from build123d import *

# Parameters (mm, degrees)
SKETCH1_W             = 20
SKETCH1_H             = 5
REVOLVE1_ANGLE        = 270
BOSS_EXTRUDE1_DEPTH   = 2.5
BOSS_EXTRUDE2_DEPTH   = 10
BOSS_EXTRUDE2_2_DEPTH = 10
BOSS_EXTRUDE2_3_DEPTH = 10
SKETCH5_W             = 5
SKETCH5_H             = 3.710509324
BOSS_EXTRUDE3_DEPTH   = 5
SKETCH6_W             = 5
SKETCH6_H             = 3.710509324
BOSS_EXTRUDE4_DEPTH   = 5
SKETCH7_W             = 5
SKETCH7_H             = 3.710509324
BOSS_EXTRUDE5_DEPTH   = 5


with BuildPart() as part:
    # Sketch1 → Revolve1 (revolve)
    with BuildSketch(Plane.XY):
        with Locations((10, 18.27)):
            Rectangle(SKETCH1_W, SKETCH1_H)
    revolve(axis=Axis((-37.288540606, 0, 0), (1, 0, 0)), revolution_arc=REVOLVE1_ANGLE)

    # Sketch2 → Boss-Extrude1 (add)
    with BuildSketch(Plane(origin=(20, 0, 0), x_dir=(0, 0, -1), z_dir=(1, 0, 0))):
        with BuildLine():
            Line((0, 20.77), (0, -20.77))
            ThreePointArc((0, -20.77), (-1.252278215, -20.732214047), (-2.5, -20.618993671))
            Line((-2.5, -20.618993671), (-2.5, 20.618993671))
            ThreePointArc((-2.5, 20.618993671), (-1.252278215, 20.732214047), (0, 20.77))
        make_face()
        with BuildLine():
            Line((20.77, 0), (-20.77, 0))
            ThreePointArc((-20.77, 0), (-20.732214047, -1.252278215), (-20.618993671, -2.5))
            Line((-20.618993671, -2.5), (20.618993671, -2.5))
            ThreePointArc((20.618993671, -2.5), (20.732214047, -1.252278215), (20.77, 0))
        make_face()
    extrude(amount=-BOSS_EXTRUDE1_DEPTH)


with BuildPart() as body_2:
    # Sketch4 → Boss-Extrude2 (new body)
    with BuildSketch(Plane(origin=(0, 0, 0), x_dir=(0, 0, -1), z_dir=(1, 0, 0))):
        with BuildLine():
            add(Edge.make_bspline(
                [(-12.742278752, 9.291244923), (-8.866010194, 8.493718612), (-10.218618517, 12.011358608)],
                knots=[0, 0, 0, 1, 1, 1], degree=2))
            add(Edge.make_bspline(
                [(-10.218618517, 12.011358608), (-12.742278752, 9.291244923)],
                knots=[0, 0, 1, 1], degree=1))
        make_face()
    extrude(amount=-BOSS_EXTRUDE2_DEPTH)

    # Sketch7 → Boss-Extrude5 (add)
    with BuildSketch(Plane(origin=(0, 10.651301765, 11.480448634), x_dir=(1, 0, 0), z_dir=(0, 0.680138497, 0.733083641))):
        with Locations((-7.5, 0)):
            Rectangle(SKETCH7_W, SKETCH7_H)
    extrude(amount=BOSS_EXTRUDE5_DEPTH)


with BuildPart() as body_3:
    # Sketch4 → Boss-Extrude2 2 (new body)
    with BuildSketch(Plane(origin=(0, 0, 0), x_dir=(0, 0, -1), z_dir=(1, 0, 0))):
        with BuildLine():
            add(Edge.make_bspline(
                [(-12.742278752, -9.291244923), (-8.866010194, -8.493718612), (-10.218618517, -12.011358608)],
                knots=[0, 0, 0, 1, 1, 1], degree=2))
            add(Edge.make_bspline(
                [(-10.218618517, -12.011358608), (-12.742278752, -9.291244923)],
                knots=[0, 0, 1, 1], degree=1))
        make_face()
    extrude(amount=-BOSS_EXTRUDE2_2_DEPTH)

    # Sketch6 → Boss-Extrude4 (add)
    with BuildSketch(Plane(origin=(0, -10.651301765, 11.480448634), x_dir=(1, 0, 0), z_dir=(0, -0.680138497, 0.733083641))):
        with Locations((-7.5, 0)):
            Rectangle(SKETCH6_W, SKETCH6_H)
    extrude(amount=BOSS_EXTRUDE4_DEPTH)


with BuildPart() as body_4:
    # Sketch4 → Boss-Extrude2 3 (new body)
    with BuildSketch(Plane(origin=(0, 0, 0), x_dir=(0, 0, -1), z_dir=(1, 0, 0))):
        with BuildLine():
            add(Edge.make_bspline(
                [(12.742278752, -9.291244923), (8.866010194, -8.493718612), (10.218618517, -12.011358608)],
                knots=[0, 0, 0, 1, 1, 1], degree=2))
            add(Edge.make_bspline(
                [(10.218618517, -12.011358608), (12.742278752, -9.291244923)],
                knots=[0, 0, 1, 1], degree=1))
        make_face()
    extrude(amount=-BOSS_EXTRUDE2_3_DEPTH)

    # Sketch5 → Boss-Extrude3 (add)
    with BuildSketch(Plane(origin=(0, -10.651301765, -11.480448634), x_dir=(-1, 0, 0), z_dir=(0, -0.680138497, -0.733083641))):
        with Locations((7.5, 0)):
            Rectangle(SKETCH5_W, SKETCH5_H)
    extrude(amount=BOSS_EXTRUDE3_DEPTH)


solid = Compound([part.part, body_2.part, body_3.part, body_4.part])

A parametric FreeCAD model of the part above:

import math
import FreeCAD as App
import Part
import Sketcher


def add_polygon(sketch, points):
    """Adds a closed chain of lines whose ends are joined by coincident constraints."""
    first, n = sketch.GeometryCount, len(points)
    for a, b in zip(points, points[1:] + points[:1]):
        sketch.addGeometry(Part.LineSegment(App.Vector(*a, 0), App.Vector(*b, 0)), False)
    for i in range(n):
        sketch.addConstraint(Sketcher.Constraint("Coincident", first + i, 2, first + (i + 1) % n, 1))

doc = App.newDocument("Part")
body = doc.addObject("PartDesign::Body", "Body")

sketch1 = body.newObject("Sketcher::SketchObject", "Sketch")
sketch1.AttachmentSupport = (doc.getObject("XY_Plane"), [""])
sketch1.MapMode = "FlatFace"
add_polygon(sketch1, [(0, 20.77), (0, 15.77), (20, 15.77), (20, 20.77)])
sketch1.addConstraint([
    Sketcher.Constraint("Vertical", 0),
    Sketcher.Constraint("Horizontal", 1),
    Sketcher.Constraint("Vertical", 2),
    Sketcher.Constraint("Horizontal", 3),
    Sketcher.Constraint("PointOnObject", 0, 2, -2),
    Sketcher.Constraint("DistanceX", 1, 1, 1, 2, 20.0),
    Sketcher.Constraint("DistanceY", 0, 2, 0, 1, 5.0),
    Sketcher.Constraint("DistanceY", -1, 1, 0, 2, 15.77),
])
revolution = body.newObject("PartDesign::Revolution", "Revolution")
revolution.Profile = sketch1
revolution.ReferenceAxis = (sketch1, ["H_Axis"])
revolution.Angle = 270

sketch2 = body.newObject("Sketcher::SketchObject", "Sketch001")
sketch2.AttachmentSupport = (doc.getObject("YZ_Plane"), [""])
sketch2.MapMode = "FlatFace"
sketch2.AttachmentOffset = App.Placement(App.Vector(0, 0, 20), App.Rotation())
sketch2.addGeometry([
    Part.ArcOfCircle(Part.Circle(App.Vector(0, 0, 0), App.Vector(0, 0, 1), 20.77), math.radians(0), math.radians(6.913221)),
    Part.LineSegment(App.Vector(20.618994, 2.5, 0), App.Vector(0, 2.5, 0)),
    Part.LineSegment(App.Vector(0, 2.5, 0), App.Vector(0, 20.77, 0)),
    Part.ArcOfCircle(Part.Circle(App.Vector(0, 0, 0), App.Vector(0, 0, 1), 20.77), math.radians(90), math.radians(96.913221)),
    Part.LineSegment(App.Vector(-2.5, 20.618994, 0), App.Vector(-2.5, 2.5, 0)),
    Part.LineSegment(App.Vector(-2.5, 2.5, 0), App.Vector(-20.618994, 2.5, 0)),
    Part.ArcOfCircle(Part.Circle(App.Vector(0, 0, 0), App.Vector(0, 0, 1), 20.77), math.radians(173.086779), math.radians(180)),
    Part.LineSegment(App.Vector(-20.77, 0, 0), App.Vector(-2.5, 0, 0)),
    Part.LineSegment(App.Vector(-2.5, 0, 0), App.Vector(-2.5, -20.618994, 0)),
    Part.ArcOfCircle(Part.Circle(App.Vector(0, 0, 0), App.Vector(0, 0, 1), 20.77), math.radians(-96.913221), math.radians(-90)),
    Part.LineSegment(App.Vector(0, -20.77, 0), App.Vector(0, 0, 0)),
    Part.LineSegment(App.Vector(0, 0, 0), App.Vector(20.77, 0, 0)),
], False)
sketch2.addConstraint([
    Sketcher.Constraint("Coincident", 0, 2, 1, 1),
    Sketcher.Constraint("Coincident", 1, 2, 2, 1),
    Sketcher.Constraint("Coincident", 2, 2, 3, 1),
    Sketcher.Constraint("Coincident", 3, 2, 4, 1),
    Sketcher.Constraint("Coincident", 4, 2, 5, 1),
    Sketcher.Constraint("Coincident", 5, 2, 6, 1),
    Sketcher.Constraint("Coincident", 6, 2, 7, 1),
    Sketcher.Constraint("Coincident", 7, 2, 8, 1),
    Sketcher.Constraint("Coincident", 8, 2, 9, 1),
    Sketcher.Constraint("Coincident", 9, 2, 10, 1),
    Sketcher.Constraint("Coincident", 10, 2, 11, 1),
    Sketcher.Constraint("Coincident", 11, 2, 0, 1),
    Sketcher.Constraint("Horizontal", 1),
    Sketcher.Constraint("Vertical", 2),
    Sketcher.Constraint("Vertical", 4),
    Sketcher.Constraint("Horizontal", 5),
    Sketcher.Constraint("Horizontal", 7),
    Sketcher.Constraint("Vertical", 8),
    Sketcher.Constraint("Vertical", 10),
    Sketcher.Constraint("Horizontal", 11),
    Sketcher.Constraint("Coincident", 0, 3, -1, 1),
    Sketcher.Constraint("Coincident", 3, 3, -1, 1),
    Sketcher.Constraint("Coincident", 6, 3, -1, 1),
    Sketcher.Constraint("Coincident", 9, 3, -1, 1),
    Sketcher.Constraint("Coincident", 10, 2, -1, 1),
    Sketcher.Constraint("Equal", 0, 3),
    Sketcher.Constraint("Equal", 3, 6),
    Sketcher.Constraint("Equal", 6, 9),
    Sketcher.Constraint("PointOnObject", 1, 2, -2),
    Sketcher.Constraint("PointOnObject", 6, 2, -1),
    Sketcher.Constraint("Horizontal", 1, 2, 4, 2),
    Sketcher.Constraint("Vertical", 4, 2, 7, 2),
    Sketcher.Constraint("Equal", 7, 2),
    Sketcher.Constraint("Radius", 0, 20.77),
    Sketcher.Constraint("DistanceX", 7, 1, 7, 2, 18.27),
])
pad1 = body.newObject("PartDesign::Pad", "Pad")
pad1.Profile = sketch2
pad1.Length = 2.5
pad1.Reversed = True
body2 = doc.addObject("PartDesign::Body", "Body001")

sketch3 = body2.newObject("Sketcher::SketchObject", "Sketch002")
sketch3.AttachmentSupport = (doc.getObject("YZ_Plane001"), [""])
sketch3.MapMode = "FlatFace"
sketch3.addGeometry([
    Part.BSplineCurve([App.Vector(9.291245, 12.742279, 0), App.Vector(8.493719, 8.86601, 0), App.Vector(12.011359, 10.218619, 0)], [3, 3], [0, 1], False, 2, [1, 1, 1], False),
    Part.BSplineCurve([App.Vector(12.011359, 10.218619, 0), App.Vector(9.291245, 12.742279, 0)], [2, 2], [0, 1], False, 1, [1, 1], False),
], False)
sketch3.addConstraint([
    Sketcher.Constraint("Block", 0),
    Sketcher.Constraint("Block", 1),
])
pad2 = body2.newObject("PartDesign::Pad", "Pad001")
pad2.Profile = sketch3
pad2.Length = 10
pad2.Reversed = True

sketch4 = body2.newObject("Sketcher::SketchObject", "Sketch003")
sketch4.Placement = App.Placement(App.Vector(0, 10.651302, 11.480449), App.Rotation(App.Vector(1, 0, 0), App.Vector(0, 0.733083641, -0.680138497), App.Vector(0, 0.680138497, 0.733083641), "ZXY"))
add_polygon(sketch4, [(-10, 1.855255), (-10, -1.855255), (-5, -1.855255), (-5, 1.855255)])
sketch4.addConstraint([
    Sketcher.Constraint("Vertical", 0),
    Sketcher.Constraint("Horizontal", 1),
    Sketcher.Constraint("Vertical", 2),
    Sketcher.Constraint("Horizontal", 3),
    Sketcher.Constraint("DistanceX", 1, 1, 1, 2, 5.0),
    Sketcher.Constraint("DistanceX", 0, 2, -1, 1, 10.0),
    Sketcher.Constraint("DistanceY", 0, 2, 0, 1, 3.710509),
    Sketcher.Constraint("DistanceY", 0, 2, -1, 1, 1.855255),
])
pad3 = body2.newObject("PartDesign::Pad", "Pad002")
pad3.Profile = sketch4
pad3.Length = 5
body3 = doc.addObject("PartDesign::Body", "Body002")

sketch5 = body3.newObject("Sketcher::SketchObject", "Sketch004")
sketch5.AttachmentSupport = (doc.getObject("YZ_Plane002"), [""])
sketch5.MapMode = "FlatFace"
sketch5.addGeometry([
    Part.BSplineCurve([App.Vector(-9.291245, 12.742279, 0), App.Vector(-8.493719, 8.86601, 0), App.Vector(-12.011359, 10.218619, 0)], [3, 3], [0, 1], False, 2, [1, 1, 1], False),
    Part.BSplineCurve([App.Vector(-12.011359, 10.218619, 0), App.Vector(-9.291245, 12.742279, 0)], [2, 2], [0, 1], False, 1, [1, 1], False),
], False)
sketch5.addConstraint([
    Sketcher.Constraint("Block", 0),
    Sketcher.Constraint("Block", 1),
])
pad4 = body3.newObject("PartDesign::Pad", "Pad003")
pad4.Profile = sketch5
pad4.Length = 10
pad4.Reversed = True

sketch6 = body3.newObject("Sketcher::SketchObject", "Sketch005")
sketch6.Placement = App.Placement(App.Vector(0, -10.651302, 11.480449), App.Rotation(App.Vector(1, 0, 0), App.Vector(0, 0.733083641, 0.680138497), App.Vector(0, -0.680138497, 0.733083641), "ZXY"))
add_polygon(sketch6, [(-10, 1.855255), (-10, -1.855255), (-5, -1.855255), (-5, 1.855255)])
sketch6.addConstraint([
    Sketcher.Constraint("Vertical", 0),
    Sketcher.Constraint("Horizontal", 1),
    Sketcher.Constraint("Vertical", 2),
    Sketcher.Constraint("Horizontal", 3),
    Sketcher.Constraint("DistanceX", 1, 1, 1, 2, 5.0),
    Sketcher.Constraint("DistanceX", 0, 2, -1, 1, 10.0),
    Sketcher.Constraint("DistanceY", 0, 2, 0, 1, 3.710509),
    Sketcher.Constraint("DistanceY", 0, 2, -1, 1, 1.855255),
])
pad5 = body3.newObject("PartDesign::Pad", "Pad004")
pad5.Profile = sketch6
pad5.Length = 5
body4 = doc.addObject("PartDesign::Body", "Body003")

sketch7 = body4.newObject("Sketcher::SketchObject", "Sketch006")
sketch7.AttachmentSupport = (doc.getObject("YZ_Plane003"), [""])
sketch7.MapMode = "FlatFace"
sketch7.addGeometry([
    Part.BSplineCurve([App.Vector(-9.291245, -12.742279, 0), App.Vector(-8.493719, -8.86601, 0), App.Vector(-12.011359, -10.218619, 0)], [3, 3], [0, 1], False, 2, [1, 1, 1], False),
    Part.BSplineCurve([App.Vector(-12.011359, -10.218619, 0), App.Vector(-9.291245, -12.742279, 0)], [2, 2], [0, 1], False, 1, [1, 1], False),
], False)
sketch7.addConstraint([
    Sketcher.Constraint("Block", 0),
    Sketcher.Constraint("Block", 1),
])
pad6 = body4.newObject("PartDesign::Pad", "Pad005")
pad6.Profile = sketch7
pad6.Length = 10
pad6.Reversed = True

sketch8 = body4.newObject("Sketcher::SketchObject", "Sketch007")
sketch8.Placement = App.Placement(App.Vector(0, -10.651302, -11.480449), App.Rotation(App.Vector(-1, 0, 0), App.Vector(0, 0.733083641, -0.680138497), App.Vector(0, -0.680138497, -0.733083641), "ZXY"))
add_polygon(sketch8, [(5, 1.855255), (5, -1.855255), (10, -1.855255), (10, 1.855255)])
sketch8.addConstraint([
    Sketcher.Constraint("Vertical", 0),
    Sketcher.Constraint("Horizontal", 1),
    Sketcher.Constraint("Vertical", 2),
    Sketcher.Constraint("Horizontal", 3),
    Sketcher.Constraint("DistanceX", 1, 1, 1, 2, 5.0),
    Sketcher.Constraint("DistanceX", -1, 1, 0, 2, 5.0),
    Sketcher.Constraint("DistanceY", 0, 2, 0, 1, 3.710509),
    Sketcher.Constraint("DistanceY", 0, 2, -1, 1, 1.855255),
])
pad7 = body4.newObject("PartDesign::Pad", "Pad006")
pad7.Profile = sketch8
pad7.Length = 5

doc.recompute()
